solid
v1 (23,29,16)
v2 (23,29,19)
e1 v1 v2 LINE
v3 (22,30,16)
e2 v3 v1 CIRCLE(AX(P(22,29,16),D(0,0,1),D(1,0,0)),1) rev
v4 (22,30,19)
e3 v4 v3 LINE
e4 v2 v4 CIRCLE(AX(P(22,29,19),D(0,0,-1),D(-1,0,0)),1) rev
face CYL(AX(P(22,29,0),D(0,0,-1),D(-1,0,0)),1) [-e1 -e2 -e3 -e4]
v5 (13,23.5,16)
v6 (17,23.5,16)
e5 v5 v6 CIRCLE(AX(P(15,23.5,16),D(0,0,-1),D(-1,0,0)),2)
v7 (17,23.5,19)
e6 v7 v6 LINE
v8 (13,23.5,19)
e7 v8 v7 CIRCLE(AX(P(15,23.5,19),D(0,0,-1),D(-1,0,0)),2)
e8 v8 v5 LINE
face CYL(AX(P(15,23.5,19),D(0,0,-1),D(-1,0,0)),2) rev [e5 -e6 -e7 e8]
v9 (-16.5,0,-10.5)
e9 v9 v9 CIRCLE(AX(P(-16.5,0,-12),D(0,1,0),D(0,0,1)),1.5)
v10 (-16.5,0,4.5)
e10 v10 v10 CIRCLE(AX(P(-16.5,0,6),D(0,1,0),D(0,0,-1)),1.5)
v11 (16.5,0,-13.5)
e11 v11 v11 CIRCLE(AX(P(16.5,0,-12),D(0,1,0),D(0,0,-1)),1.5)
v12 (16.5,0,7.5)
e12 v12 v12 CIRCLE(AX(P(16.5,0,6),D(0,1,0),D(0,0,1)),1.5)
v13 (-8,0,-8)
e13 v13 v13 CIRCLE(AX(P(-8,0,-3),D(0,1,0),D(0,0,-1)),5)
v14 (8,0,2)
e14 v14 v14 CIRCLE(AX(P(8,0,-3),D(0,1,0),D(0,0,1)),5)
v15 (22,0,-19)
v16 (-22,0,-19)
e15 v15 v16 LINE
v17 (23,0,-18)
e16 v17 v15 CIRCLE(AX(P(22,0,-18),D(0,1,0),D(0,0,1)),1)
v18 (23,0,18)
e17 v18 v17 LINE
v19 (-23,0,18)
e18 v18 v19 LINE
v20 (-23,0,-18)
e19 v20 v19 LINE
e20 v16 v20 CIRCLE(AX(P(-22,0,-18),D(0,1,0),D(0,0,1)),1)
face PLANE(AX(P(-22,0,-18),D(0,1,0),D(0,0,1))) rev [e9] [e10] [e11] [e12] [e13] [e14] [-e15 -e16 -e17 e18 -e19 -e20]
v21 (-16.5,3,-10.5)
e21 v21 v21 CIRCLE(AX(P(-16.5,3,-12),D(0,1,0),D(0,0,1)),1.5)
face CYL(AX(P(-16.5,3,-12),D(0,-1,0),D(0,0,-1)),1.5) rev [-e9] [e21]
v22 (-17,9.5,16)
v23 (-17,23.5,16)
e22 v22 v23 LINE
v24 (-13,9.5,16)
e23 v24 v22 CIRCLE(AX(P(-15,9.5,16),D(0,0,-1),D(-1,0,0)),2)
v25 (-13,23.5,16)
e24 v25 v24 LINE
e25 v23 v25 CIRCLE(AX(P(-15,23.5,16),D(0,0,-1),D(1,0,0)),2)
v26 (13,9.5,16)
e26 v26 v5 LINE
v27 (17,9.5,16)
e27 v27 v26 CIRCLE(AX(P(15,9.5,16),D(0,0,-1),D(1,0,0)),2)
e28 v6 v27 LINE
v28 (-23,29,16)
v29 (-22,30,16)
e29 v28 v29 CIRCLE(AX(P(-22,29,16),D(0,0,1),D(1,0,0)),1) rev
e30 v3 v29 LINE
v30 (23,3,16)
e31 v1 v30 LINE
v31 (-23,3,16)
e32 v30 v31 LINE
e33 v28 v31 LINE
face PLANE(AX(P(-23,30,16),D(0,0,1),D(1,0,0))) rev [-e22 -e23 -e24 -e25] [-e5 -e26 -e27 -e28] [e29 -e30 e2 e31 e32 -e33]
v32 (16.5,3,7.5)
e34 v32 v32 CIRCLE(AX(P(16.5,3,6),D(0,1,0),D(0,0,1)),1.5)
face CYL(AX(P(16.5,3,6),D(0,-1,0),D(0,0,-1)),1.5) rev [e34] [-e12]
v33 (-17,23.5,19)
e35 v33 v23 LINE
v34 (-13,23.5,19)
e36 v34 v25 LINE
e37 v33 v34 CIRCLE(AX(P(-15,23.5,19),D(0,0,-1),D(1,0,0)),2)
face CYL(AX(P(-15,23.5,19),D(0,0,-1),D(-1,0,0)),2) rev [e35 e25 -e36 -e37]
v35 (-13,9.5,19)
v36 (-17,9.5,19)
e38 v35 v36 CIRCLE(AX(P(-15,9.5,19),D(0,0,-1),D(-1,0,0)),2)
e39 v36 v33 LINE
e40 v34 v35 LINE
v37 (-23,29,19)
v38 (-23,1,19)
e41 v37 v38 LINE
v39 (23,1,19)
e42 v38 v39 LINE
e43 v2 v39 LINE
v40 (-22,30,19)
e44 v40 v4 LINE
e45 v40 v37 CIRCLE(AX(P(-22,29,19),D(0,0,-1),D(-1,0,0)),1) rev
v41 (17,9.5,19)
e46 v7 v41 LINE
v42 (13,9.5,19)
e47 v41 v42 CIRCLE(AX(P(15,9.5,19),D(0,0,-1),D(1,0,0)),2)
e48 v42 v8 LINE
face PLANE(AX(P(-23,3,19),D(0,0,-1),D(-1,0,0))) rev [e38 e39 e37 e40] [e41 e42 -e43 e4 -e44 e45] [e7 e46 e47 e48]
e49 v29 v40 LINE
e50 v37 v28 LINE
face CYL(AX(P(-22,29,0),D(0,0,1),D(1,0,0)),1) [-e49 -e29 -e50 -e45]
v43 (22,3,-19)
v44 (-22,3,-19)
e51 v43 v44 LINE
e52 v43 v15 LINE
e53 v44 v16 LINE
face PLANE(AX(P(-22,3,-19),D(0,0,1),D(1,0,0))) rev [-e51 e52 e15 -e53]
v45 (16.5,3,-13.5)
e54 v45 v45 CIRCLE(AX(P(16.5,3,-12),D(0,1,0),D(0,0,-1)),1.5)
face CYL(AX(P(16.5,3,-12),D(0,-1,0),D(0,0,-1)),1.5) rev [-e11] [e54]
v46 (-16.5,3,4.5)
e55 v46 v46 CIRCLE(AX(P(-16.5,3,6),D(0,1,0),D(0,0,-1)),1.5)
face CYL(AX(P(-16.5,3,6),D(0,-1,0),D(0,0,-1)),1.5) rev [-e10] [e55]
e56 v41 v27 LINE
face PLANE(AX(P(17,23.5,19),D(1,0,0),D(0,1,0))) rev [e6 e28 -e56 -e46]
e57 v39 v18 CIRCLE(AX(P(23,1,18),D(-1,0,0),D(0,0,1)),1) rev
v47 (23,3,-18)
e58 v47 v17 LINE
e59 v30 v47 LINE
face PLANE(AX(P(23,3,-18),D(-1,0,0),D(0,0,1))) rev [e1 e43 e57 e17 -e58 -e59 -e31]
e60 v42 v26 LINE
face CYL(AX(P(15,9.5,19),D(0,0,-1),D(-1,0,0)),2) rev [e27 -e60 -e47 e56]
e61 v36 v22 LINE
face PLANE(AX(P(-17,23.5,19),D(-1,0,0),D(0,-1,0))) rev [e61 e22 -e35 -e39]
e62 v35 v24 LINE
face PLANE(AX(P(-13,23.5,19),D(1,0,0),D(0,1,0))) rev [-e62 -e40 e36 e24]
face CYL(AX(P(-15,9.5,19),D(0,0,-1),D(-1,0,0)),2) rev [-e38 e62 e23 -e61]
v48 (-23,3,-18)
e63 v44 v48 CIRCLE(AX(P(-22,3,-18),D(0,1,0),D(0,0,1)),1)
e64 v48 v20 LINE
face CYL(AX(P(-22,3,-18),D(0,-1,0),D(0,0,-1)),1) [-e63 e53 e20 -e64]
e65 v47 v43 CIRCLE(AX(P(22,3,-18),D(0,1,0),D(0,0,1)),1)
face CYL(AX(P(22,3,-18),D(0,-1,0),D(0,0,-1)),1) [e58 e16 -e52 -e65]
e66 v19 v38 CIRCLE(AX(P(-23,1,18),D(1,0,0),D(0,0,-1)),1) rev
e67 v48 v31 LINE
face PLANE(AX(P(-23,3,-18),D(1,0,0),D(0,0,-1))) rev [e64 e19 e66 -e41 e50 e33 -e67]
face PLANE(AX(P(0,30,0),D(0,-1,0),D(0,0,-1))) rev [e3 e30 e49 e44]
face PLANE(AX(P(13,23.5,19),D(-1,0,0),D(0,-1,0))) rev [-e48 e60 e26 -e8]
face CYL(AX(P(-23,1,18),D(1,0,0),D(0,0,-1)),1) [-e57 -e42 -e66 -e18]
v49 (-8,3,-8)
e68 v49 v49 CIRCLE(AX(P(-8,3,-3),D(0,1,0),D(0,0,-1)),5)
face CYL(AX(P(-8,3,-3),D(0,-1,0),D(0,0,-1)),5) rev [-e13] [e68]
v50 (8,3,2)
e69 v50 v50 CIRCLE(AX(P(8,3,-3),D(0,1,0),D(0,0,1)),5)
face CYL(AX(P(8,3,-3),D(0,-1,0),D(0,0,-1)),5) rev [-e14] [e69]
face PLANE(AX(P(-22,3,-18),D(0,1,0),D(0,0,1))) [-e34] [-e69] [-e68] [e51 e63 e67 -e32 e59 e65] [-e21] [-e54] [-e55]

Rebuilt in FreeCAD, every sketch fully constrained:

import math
import FreeCAD as App
import Part
import Sketcher

V = App.Vector


def edges_at(feature, points):
    """Names of the edges that pass closest to the given points."""
    edges = feature.Shape.Edges
    near = lambda p: min(range(len(edges)), key=lambda i: edges[i].distToShape(Part.Vertex(*p))[0])
    return sorted({f"Edge{near(p) + 1}" for p in points})

doc = App.newDocument("Part")
body = doc.addObject("PartDesign::Body", "Body")

# Sketch on XZ plane
sketch1 = body.newObject("Sketcher::SketchObject", "Sketch")
sketch1.AttachmentSupport = (doc.getObject("XZ_Plane"), [""])
sketch1.MapMode = "FlatFace"
sketch1.addGeometry([
    Part.LineSegment(V(22, -19, 0), V(-22, -19, 0)),  # 0
    Part.ArcOfCircle(Part.Circle(V(-22, -18, 0), V(0, 0, 1), 1), math.radians(-180), math.radians(-90)),  # 1
    Part.LineSegment(V(-23, -18, 0), V(-23, 19, 0)),  # 2
    Part.LineSegment(V(-23, 19, 0), V(23, 19, 0)),  # 3
    Part.LineSegment(V(23, 19, 0), V(23, -18, 0)),  # 4
    Part.ArcOfCircle(Part.Circle(V(22, -18, 0), V(0, 0, 1), 1), math.radians(-90), math.radians(0)),  # 5
    Part.Circle(V(16.5, 6, 0), V(0, 0, 1), 1.5),  # 6
    Part.Circle(V(-16.5, 6, 0), V(0, 0, 1), 1.5),  # 7
    Part.Circle(V(8, -3, 0), V(0, 0, 1), 5),  # 8
    Part.Circle(V(16.5, -12, 0), V(0, 0, 1), 1.5),  # 9
    Part.Circle(V(-8, -3, 0), V(0, 0, 1), 5),  # 10
    Part.Circle(V(-16.5, -12, 0), V(0, 0, 1), 1.5),  # 11
], False)
sketch1.addConstraint([
    Sketcher.Constraint("Tangent", 0, 2, 1, 2),
    Sketcher.Constraint("Tangent", 1, 1, 2, 1),
    Sketcher.Constraint("Coincident", 2, 2, 3, 1),
    Sketcher.Constraint("Coincident", 3, 2, 4, 1),
    Sketcher.Constraint("Tangent", 4, 2, 5, 2),
    Sketcher.Constraint("Tangent", 5, 1, 0, 1),
    Sketcher.Constraint("Horizontal", 0),
    Sketcher.Constraint("Vertical", 2),
    Sketcher.Constraint("Horizontal", 3),
    Sketcher.Constraint("Vertical", 4),
    Sketcher.Constraint("Equal", 1, 5),
    Sketcher.Constraint("Equal", 6, 7),
    Sketcher.Constraint("Equal", 7, 9),
    Sketcher.Constraint("Equal", 8, 10),
    Sketcher.Constraint("Equal", 9, 11),
    Sketcher.Constraint("Symmetric", 6, 3, 7, 3, -2),
    Sketcher.Constraint("Symmetric", 8, 3, 10, 3, -2),
    Sketcher.Constraint("Symmetric", 9, 3, 11, 3, -2),
    Sketcher.Constraint("Vertical", 6, 3, 9, 3),
    Sketcher.Constraint("Diameter", 6, 3.0),
    Sketcher.Constraint("Diameter", 8, 10.0),
    Sketcher.Constraint("Radius", 1, 1.0),
    Sketcher.Constraint("DistanceX", 0, 2, 0, 1, 44.0),
    Sketcher.Constraint("DistanceY", 2, 1, 2, 2, 37.0),
    Sketcher.Constraint("DistanceX", 1, 3, -1, 1, 22.0),
    Sketcher.Constraint("DistanceY", 1, 3, -1, 1, 18.0),
    Sketcher.Constraint("DistanceY", -1, 1, 6, 3, 6.0),
    Sketcher.Constraint("DistanceX", -1, 1, 8, 3, 8.0),
    Sketcher.Constraint("DistanceY", 8, 3, -1, 1, 3.0),
    Sketcher.Constraint("DistanceY", 9, 3, -1, 1, 12.0),
    Sketcher.Constraint("DistanceX", 7, 3, 6, 3, 33.0),
])
pad1 = body.newObject("PartDesign::Pad", "Pad")
pad1.Profile = sketch1
pad1.Length = 3
pad1.Reversed = True

# Sketch on XZ plane
sketch2 = body.newObject("Sketcher::SketchObject", "Sketch001")
sketch2.AttachmentSupport = (doc.getObject("XZ_Plane"), [""])
sketch2.MapMode = "FlatFace"
sketch2.AttachmentOffset = App.Placement(V(0, 0, -3), App.Rotation())
sketch2.addGeometry([
    Part.LineSegment(V(-23, 16, 0), V(-23, 19, 0)),
    Part.LineSegment(V(-23, 19, 0), V(23, 19, 0)),
    Part.LineSegment(V(23, 19, 0), V(23, 16, 0)),
    Part.LineSegment(V(23, 16, 0), V(-23, 16, 0)),
], False)
sketch2.addConstraint([
    Sketcher.Constraint("Coincident", 0, 2, 1, 1),
    Sketcher.Constraint("Coincident", 1, 2, 2, 1),
    Sketcher.Constraint("Coincident", 2, 2, 3, 1),
    Sketcher.Constraint("Coincident", 3, 2, 0, 1),
    Sketcher.Constraint("Vertical", 0),
    Sketcher.Constraint("Horizontal", 1),
    Sketcher.Constraint("Vertical", 2),
    Sketcher.Constraint("Horizontal", 3),
    Sketcher.Constraint("DistanceX", 1, 1, 1, 2, 46.0),
    Sketcher.Constraint("DistanceY", 0, 1, 0, 2, 3.0),
    Sketcher.Constraint("DistanceX", 0, 2, -1, 1, 23.0),
    Sketcher.Constraint("DistanceY", -1, 1, 0, 2, 19.0),
])
pad2 = body.newObject("PartDesign::Pad", "Pad001")
pad2.Profile = sketch2
pad2.Length = 27
pad2.Reversed = True

# Sketch on XY plane
sketch3 = body.newObject("Sketcher::SketchObject", "Sketch002")
sketch3.AttachmentSupport = (doc.getObject("XY_Plane"), [""])
sketch3.MapMode = "FlatFace"
sketch3.AttachmentOffset = App.Placement(V(0, 0, 16), App.Rotation())
sketch3.addGeometry([
    Part.LineSegment(V(17, 23.5, 0), V(17, 9.5, 0)),  # 0
    Part.ArcOfCircle(Part.Circle(V(15, 9.5, 0), V(0, 0, 1), 2), math.radians(180), math.radians(360)),  # 1
    Part.LineSegment(V(13, 9.5, 0), V(13, 23.5, 0)),  # 2
    Part.ArcOfCircle(Part.Circle(V(15, 23.5, 0), V(0, 0, 1), 2), math.radians(0), math.radians(180)),  # 3
    Part.LineSegment(V(-13, 23.5, 0), V(-13, 9.5, 0)),  # 4
    Part.ArcOfCircle(Part.Circle(V(-15, 9.5, 0), V(0, 0, 1), 2), math.radians(180), math.radians(360)),  # 5
    Part.LineSegment(V(-17, 9.5, 0), V(-17, 23.5, 0)),  # 6
    Part.ArcOfCircle(Part.Circle(V(-15, 23.5, 0), V(0, 0, 1), 2), math.radians(0), math.radians(180)),  # 7
], False)
sketch3.addConstraint([
    Sketcher.Constraint("Tangent", 0, 2, 1, 2),
    Sketcher.Constraint("Tangent", 1, 1, 2, 1),
    Sketcher.Constraint("Tangent", 2, 2, 3, 2),
    Sketcher.Constraint("Tangent", 3, 1, 0, 1),
    Sketcher.Constraint("Tangent", 4, 2, 5, 2),
    Sketcher.Constraint("Tangent", 5, 1, 6, 1),
    Sketcher.Constraint("Tangent", 6, 2, 7, 2),
    Sketcher.Constraint("Tangent", 7, 1, 4, 1),
    Sketcher.Constraint("Vertical", 0),
    Sketcher.Constraint("Vertical", 2),
    Sketcher.Constraint("Vertical", 4),
    Sketcher.Constraint("Vertical", 6),
    Sketcher.Constraint("Equal", 3, 5),
    Sketcher.Constraint("Symmetric", 1, 3, 5, 3, -2),
    Sketcher.Constraint("Horizontal", 3, 3, 7, 3),
    Sketcher.Constraint("Radius", 1, 2.0),
    Sketcher.Constraint("DistanceY", 0, 2, 0, 1, 14.0),
    Sketcher.Constraint("DistanceX", -1, 1, 1, 3, 15.0),
    Sketcher.Constraint("DistanceY", -1, 1, 1, 3, 9.5),
])
pocket1 = body.newObject("PartDesign::Pocket", "Pocket")
pocket1.Profile = sketch3
pocket1.Type = "ThroughAll"
pocket1.Reversed = True
doc.recompute()

fillet = body.newObject("PartDesign::Fillet", "Fillet")
fillet.Base = (pocket1, edges_at(pocket1, [(-23, 30, 17.5), (23, 30, 17.5)]))
fillet.Radius = 1
doc.recompute()

fillet2 = body.newObject("PartDesign::Fillet", "Fillet001")
fillet2.Base = (fillet, edges_at(fillet, [(0, 0, 19)]))
fillet2.Radius = 1

doc.recompute()
